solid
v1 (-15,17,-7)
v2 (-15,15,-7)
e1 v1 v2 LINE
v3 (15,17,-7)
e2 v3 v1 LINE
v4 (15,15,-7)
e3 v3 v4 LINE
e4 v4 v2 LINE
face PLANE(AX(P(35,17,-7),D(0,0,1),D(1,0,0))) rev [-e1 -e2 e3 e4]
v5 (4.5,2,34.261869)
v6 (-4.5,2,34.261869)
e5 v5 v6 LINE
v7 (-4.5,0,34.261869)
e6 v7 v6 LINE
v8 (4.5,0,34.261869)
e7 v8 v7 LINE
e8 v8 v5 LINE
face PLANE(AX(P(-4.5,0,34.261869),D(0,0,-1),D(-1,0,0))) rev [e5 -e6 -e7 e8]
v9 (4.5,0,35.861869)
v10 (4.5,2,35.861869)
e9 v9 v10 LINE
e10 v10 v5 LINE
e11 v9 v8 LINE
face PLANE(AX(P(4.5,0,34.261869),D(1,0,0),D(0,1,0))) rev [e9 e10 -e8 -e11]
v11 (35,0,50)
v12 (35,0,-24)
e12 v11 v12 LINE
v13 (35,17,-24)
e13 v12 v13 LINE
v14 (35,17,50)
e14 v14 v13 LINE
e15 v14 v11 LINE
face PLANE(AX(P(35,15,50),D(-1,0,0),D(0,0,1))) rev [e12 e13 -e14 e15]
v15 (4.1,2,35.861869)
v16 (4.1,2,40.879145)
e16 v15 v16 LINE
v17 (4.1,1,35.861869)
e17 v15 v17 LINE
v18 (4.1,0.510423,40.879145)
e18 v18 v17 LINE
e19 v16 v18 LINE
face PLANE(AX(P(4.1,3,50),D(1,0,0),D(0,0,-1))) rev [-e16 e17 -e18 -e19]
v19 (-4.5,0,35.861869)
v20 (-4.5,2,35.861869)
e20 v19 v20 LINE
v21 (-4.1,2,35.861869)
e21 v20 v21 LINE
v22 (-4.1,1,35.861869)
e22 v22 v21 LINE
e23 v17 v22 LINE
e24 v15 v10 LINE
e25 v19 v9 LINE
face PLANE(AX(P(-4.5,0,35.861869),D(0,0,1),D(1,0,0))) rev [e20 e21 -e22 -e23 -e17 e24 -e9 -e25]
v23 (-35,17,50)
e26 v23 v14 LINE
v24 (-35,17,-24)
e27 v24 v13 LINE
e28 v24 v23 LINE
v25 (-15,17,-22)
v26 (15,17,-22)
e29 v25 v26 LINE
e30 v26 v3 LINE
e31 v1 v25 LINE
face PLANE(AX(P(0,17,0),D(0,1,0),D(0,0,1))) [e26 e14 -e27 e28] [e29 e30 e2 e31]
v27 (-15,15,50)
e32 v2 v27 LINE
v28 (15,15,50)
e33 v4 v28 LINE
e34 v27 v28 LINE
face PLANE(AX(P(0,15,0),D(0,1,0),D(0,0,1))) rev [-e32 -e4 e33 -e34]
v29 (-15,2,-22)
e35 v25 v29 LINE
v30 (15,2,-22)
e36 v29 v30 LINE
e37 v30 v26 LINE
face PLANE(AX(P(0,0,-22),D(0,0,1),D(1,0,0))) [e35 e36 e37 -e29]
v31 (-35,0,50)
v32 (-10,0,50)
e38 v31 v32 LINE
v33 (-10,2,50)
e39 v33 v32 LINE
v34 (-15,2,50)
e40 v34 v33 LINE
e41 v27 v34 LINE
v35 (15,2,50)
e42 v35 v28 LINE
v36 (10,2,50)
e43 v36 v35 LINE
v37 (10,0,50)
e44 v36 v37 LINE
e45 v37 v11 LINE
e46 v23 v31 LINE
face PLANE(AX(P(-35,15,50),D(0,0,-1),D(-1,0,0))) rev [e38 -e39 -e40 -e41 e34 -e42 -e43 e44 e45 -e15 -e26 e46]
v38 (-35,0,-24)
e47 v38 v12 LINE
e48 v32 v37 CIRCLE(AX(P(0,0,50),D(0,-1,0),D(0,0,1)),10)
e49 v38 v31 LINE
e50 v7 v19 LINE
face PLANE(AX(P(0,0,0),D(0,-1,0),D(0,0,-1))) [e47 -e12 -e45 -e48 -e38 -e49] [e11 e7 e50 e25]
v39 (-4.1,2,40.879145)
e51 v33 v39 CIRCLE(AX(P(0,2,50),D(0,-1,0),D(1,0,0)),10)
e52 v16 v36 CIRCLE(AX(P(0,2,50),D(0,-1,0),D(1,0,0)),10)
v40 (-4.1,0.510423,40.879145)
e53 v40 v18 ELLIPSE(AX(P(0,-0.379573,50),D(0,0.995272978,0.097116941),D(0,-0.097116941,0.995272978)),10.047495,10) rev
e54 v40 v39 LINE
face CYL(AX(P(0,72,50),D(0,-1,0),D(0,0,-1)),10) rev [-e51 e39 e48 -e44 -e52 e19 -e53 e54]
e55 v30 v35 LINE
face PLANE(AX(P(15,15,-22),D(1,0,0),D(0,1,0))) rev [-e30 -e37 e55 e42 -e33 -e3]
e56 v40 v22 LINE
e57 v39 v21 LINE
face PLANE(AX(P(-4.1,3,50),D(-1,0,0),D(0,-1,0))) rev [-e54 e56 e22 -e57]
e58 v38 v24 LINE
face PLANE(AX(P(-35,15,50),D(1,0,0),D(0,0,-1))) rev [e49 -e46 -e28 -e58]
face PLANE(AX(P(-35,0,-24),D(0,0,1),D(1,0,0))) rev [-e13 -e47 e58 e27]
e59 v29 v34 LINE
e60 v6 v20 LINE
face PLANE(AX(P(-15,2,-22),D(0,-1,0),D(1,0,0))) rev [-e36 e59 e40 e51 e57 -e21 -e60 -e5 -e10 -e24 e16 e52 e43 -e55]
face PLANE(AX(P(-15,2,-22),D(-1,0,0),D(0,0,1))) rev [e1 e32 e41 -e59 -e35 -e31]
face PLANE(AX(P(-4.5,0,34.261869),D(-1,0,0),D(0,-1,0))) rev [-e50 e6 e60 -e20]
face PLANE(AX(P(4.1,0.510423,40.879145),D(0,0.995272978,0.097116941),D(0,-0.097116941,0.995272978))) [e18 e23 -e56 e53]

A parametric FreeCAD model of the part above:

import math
import FreeCAD as App
import Part
import Sketcher
Q = App.Units.Quantity

doc = App.newDocument("Part")
params = doc.addObject("Spreadsheet::Sheet", "Params")
for row, (alias, value) in enumerate([
    ("sketch1_width", "70 mm"),
    ("sketch1_height", "100 mm"),
    ("pad1_length", "15 mm"),
    ("sketch2_width", "30 mm"),
    ("sketch2_height", "13 mm"),
    ("pocket1_length", "72 mm"),
    ("sketch3_radius", "10 mm"),
    ("pocket2_length", "72 mm"),
    ("sketch4_width", "9 mm"),
    ("sketch4_height", "1.6 mm"),
    ("pocket3_length", "2 mm"),
    ("sketch5_height", "2 mm"),
    ("sketch5_width", "8.2 mm"),
    ("pocket5_length", "8.2 mm"),
    ("sketch7_width", "70 mm"),
    ("sketch7_height", "57 mm"),
    ("pad2_length", "2 mm"),
    ("sketch8_width", "20 mm"),
    ("sketch8_height", "15 mm"),
    ("pad3_length", "2 mm"),
    ("sketch9_width", "70 mm"),
    ("pad4_length", "2 mm"),
    ("sketch10_width", "70 mm"),
    ("sketch10_height", "26 mm"),
], start=1):
    params.set(f"A{row}", alias)
    params.set(f"B{row}", "=" + value)
    params.setAlias(f"B{row}", alias)

body = doc.addObject("PartDesign::Body", "Body")

# Sketch on XZ plane
sketch1 = body.newObject("Sketcher::SketchObject", "Sketch")
sketch1.AttachmentSupport = (doc.getObject("XZ_Plane"), [""])
sketch1.MapMode = "FlatFace"
sketch1.addGeometry(Part.LineSegment(App.Vector(-35, -50, 0), App.Vector(-35, 50, 0)), False)
sketch1.addGeometry(Part.LineSegment(App.Vector(-35, 50, 0), App.Vector(35, 50, 0)), False)
sketch1.addGeometry(Part.LineSegment(App.Vector(35, 50, 0), App.Vector(35, -50, 0)), False)
sketch1.addGeometry(Part.LineSegment(App.Vector(35, -50, 0), App.Vector(-35, -50, 0)), False)
sketch1.addConstraint(Sketcher.Constraint("Coincident", 0, 2, 1, 1))
sketch1.addConstraint(Sketcher.Constraint("Coincident", 1, 2, 2, 1))
sketch1.addConstraint(Sketcher.Constraint("Coincident", 2, 2, 3, 1))
sketch1.addConstraint(Sketcher.Constraint("Coincident", 3, 2, 0, 1))
sketch1.addConstraint(Sketcher.Constraint("Vertical", 0))
sketch1.addConstraint(Sketcher.Constraint("Horizontal", 1))
sketch1.addConstraint(Sketcher.Constraint("Vertical", 2))
sketch1.addConstraint(Sketcher.Constraint("Horizontal", 3))
sketch1.addConstraint(Sketcher.Constraint("Symmetric", 0, 2, 2, 2, -1, 1))
sketch1.addConstraint(Sketcher.Constraint("DistanceX", 1, 1, 1, 2, Q("70 mm")))
sketch1.addConstraint(Sketcher.Constraint("DistanceY", 0, 1, 0, 2, Q("100 mm")))
sketch1.setExpression("Constraints[9]", "Params.sketch1_width")
sketch1.setExpression("Constraints[10]", "Params.sketch1_height")
pad1 = body.newObject("PartDesign::Pad", "Pad")
pad1.Profile = sketch1
pad1.setExpression("Length", "Params.pad1_length")
pad1.Reversed = True

# Sketch on XY plane
sketch2 = body.newObject("Sketcher::SketchObject", "Sketch001")
sketch2.AttachmentSupport = (doc.getObject("XY_Plane"), [""])
sketch2.MapMode = "FlatFace"
sketch2.AttachmentOffset = App.Placement(App.Vector(0, 0, 50), App.Rotation())
sketch2.addGeometry(Part.LineSegment(App.Vector(-15, 15, 0), App.Vector(-15, 2, 0)), False)
sketch2.addGeometry(Part.LineSegment(App.Vector(-15, 2, 0), App.Vector(15, 2, 0)), False)
sketch2.addGeometry(Part.LineSegment(App.Vector(15, 2, 0), App.Vector(15, 15, 0)), False)
sketch2.addGeometry(Part.LineSegment(App.Vector(15, 15, 0), App.Vector(-15, 15, 0)), False)
sketch2.addConstraint(Sketcher.Constraint("Coincident", 0, 2, 1, 1))
sketch2.addConstraint(Sketcher.Constraint("Coincident", 1, 2, 2, 1))
sketch2.addConstraint(Sketcher.Constraint("Coincident", 2, 2, 3, 1))
sketch2.addConstraint(Sketcher.Constraint("Coincident", 3, 2, 0, 1))
sketch2.addConstraint(Sketcher.Constraint("Vertical", 0))
sketch2.addConstraint(Sketcher.Constraint("Horizontal", 1))
sketch2.addConstraint(Sketcher.Constraint("Vertical", 2))
sketch2.addConstraint(Sketcher.Constraint("Horizontal", 3))
sketch2.addConstraint(Sketcher.Constraint("DistanceX", 1, 1, 1, 2, Q("30 mm")))
sketch2.addConstraint(Sketcher.Constraint("DistanceY", 0, 2, 0, 1, Q("13 mm")))
sketch2.addConstraint(Sketcher.Constraint("DistanceX", 0, 2, -1, 1, Q("15 mm")))
sketch2.addConstraint(Sketcher.Constraint("DistanceY", -1, 1, 0, 2, Q("2 mm")))
sketch2.setExpression("Constraints[8]", "Params.sketch2_width")
sketch2.setExpression("Constraints[9]", "Params.sketch2_height")
pocket1 = body.newObject("PartDesign::Pocket", "Pocket")
pocket1.Profile = sketch2
pocket1.setExpression("Length", "Params.pocket1_length")

# Sketch on XZ plane
sketch3 = body.newObject("Sketcher::SketchObject", "Sketch002")
sketch3.AttachmentSupport = (doc.getObject("XZ_Plane"), [""])
sketch3.MapMode = "FlatFace"
sketch3.addGeometry(Part.LineSegment(App.Vector(10, 50, 0), App.Vector(-10, 50, 0)), False)
sketch3.addGeometry(Part.ArcOfCircle(Part.Circle(App.Vector(0, 50, 0), App.Vector(0, 0, 1), 10), math.radians(180), math.radians(360)), False)
sketch3.addConstraint(Sketcher.Constraint("Coincident", 0, 1, 1, 2))
sketch3.addConstraint(Sketcher.Constraint("Coincident", 1, 1, 0, 2))
sketch3.addConstraint(Sketcher.Constraint("Horizontal", 0))
sketch3.addConstraint(Sketcher.Constraint("PointOnObject", 1, 3, -2))
sketch3.addConstraint(Sketcher.Constraint("Horizontal", 1, 3, 0, 1))
sketch3.addConstraint(Sketcher.Constraint("Radius", 1, Q("10 mm")))
sketch3.addConstraint(Sketcher.Constraint("DistanceY", -1, 1, 1, 3, Q("50 mm")))
sketch3.setExpression("Constraints[5]", "Params.sketch3_radius")
pocket2 = body.newObject("PartDesign::Pocket", "Pocket001")
pocket2.Profile = sketch3
pocket2.setExpression("Length", "Params.pocket2_length")

# Sketch on XZ plane
sketch4 = body.newObject("Sketcher::SketchObject", "Sketch003")
sketch4.AttachmentSupport = (doc.getObject("XZ_Plane"), [""])
sketch4.MapMode = "FlatFace"
sketch4.AttachmentOffset = App.Placement(App.Vector(0, 0, -2), App.Rotation())
sketch4.addGeometry(Part.LineSegment(App.Vector(-4.5, 34.261869, 0), App.Vector(-4.5, 35.861869, 0)), False)
sketch4.addGeometry(Part.LineSegment(App.Vector(-4.5, 35.861869, 0), App.Vector(4.5, 35.861869, 0)), False)
sketch4.addGeometry(Part.LineSegment(App.Vector(4.5, 35.861869, 0), App.Vector(4.5, 34.261869, 0)), False)
sketch4.addGeometry(Part.LineSegment(App.Vector(4.5, 34.261869, 0), App.Vector(-4.5, 34.261869, 0)), False)
sketch4.addConstraint(Sketcher.Constraint("Coincident", 0, 2, 1, 1))
sketch4.addConstraint(Sketcher.Constraint("Coincident", 1, 2, 2, 1))
sketch4.addConstraint(Sketcher.Constraint("Coincident", 2, 2, 3, 1))
sketch4.addConstraint(Sketcher.Constraint("Coincident", 3, 2, 0, 1))
sketch4.addConstraint(Sketcher.Constraint("Vertical", 0))
sketch4.addConstraint(Sketcher.Constraint("Horizontal", 1))
sketch4.addConstraint(Sketcher.Constraint("Vertical", 2))
sketch4.addConstraint(Sketcher.Constraint("Horizontal", 3))
sketch4.addConstraint(Sketcher.Constraint("DistanceX", 1, 1, 1, 2, Q("9 mm")))
sketch4.addConstraint(Sketcher.Constraint("DistanceY", 0, 1, 0, 2, Q("1.6 mm")))
sketch4.addConstraint(Sketcher.Constraint("DistanceX", 0, 2, -1, 1, Q("4.5 mm")))
sketch4.addConstraint(Sketcher.Constraint("DistanceY", -1, 1, 0, 2, Q("35.861869 mm")))
sketch4.setExpression("Constraints[8]", "Params.sketch4_width")
sketch4.setExpression("Constraints[9]", "Params.sketch4_height")
pocket3 = body.newObject("PartDesign::Pocket", "Pocket002")
pocket3.Profile = sketch4
pocket3.setExpression("Length", "Params.pocket3_length")
pocket3.Reversed = True

# Sketch on XY plane
sketch5 = body.newObject("Sketcher::SketchObject", "Sketch004")
sketch5.AttachmentSupport = (doc.getObject("XY_Plane"), [""])
sketch5.MapMode = "FlatFace"
sketch5.AttachmentOffset = App.Placement(App.Vector(0, 0, 35.861869), App.Rotation())
sketch5.addGeometry(Part.LineSegment(App.Vector(4.1, 3, 0), App.Vector(4.1, 1, 0)), False)
sketch5.addGeometry(Part.LineSegment(App.Vector(4.1, 1, 0), App.Vector(-4.1, 1, 0)), False)
sketch5.addGeometry(Part.LineSegment(App.Vector(-4.1, 1, 0), App.Vector(-4.1, 3, 0)), False)
sketch5.addGeometry(Part.LineSegment(App.Vector(-4.1, 3, 0), App.Vector(4.1, 3, 0)), False)
sketch5.addConstraint(Sketcher.Constraint("Coincident", 0, 2, 1, 1))
sketch5.addConstraint(Sketcher.Constraint("Coincident", 1, 2, 2, 1))
sketch5.addConstraint(Sketcher.Constraint("Coincident", 2, 2, 3, 1))
sketch5.addConstraint(Sketcher.Constraint("Coincident", 3, 2, 0, 1))
sketch5.addConstraint(Sketcher.Constraint("Vertical", 0))
sketch5.addConstraint(Sketcher.Constraint("Horizontal", 1))
sketch5.addConstraint(Sketcher.Constraint("Vertical", 2))
sketch5.addConstraint(Sketcher.Constraint("Horizontal", 3))
sketch5.addConstraint(Sketcher.Constraint("DistanceY", 0, 2, 0, 1, Q("2 mm")))
sketch5.addConstraint(Sketcher.Constraint("DistanceX", 1, 2, 1, 1, Q("8.2 mm")))
sketch5.addConstraint(Sketcher.Constraint("DistanceY", -1, 1, 0, 2, Q("1 mm")))
sketch5.addConstraint(Sketcher.Constraint("DistanceX", -1, 1, 0, 2, Q("4.1 mm")))
sketch5.setExpression("Constraints[8]", "Params.sketch5_height")
sketch5.setExpression("Constraints[9]", "Params.sketch5_width")
pocket4 = body.newObject("PartDesign::Pocket", "Pocket003")
pocket4.Profile = sketch5
pocket4.Type = "ThroughAll"
pocket4.Reversed = True

# Sketch on YZ plane
sketch6 = body.newObject("Sketcher::SketchObject", "Sketch005")
sketch6.AttachmentSupport = (doc.getObject("YZ_Plane"), [""])
sketch6.MapMode = "FlatFace"
sketch6.AttachmentOffset = App.Placement(App.Vector(0, 0, -4.1), App.Rotation())
sketch6.addGeometry(Part.LineSegment(App.Vector(0.510423, 40.879145, 0), App.Vector(1, 35.861869, 0)), False)
sketch6.addGeometry(Part.LineSegment(App.Vector(1, 35.861869, 0), App.Vector(1, 40.879145, 0)), False)
sketch6.addGeometry(Part.LineSegment(App.Vector(1, 40.879145, 0), App.Vector(0.510423, 40.879145, 0)), False)
sketch6.addConstraint(Sketcher.Constraint("Coincident", 0, 2, 1, 1))
sketch6.addConstraint(Sketcher.Constraint("Coincident", 1, 2, 2, 1))
sketch6.addConstraint(Sketcher.Constraint("Coincident", 2, 2, 0, 1))
sketch6.addConstraint(Sketcher.Constraint("Vertical", 1))
sketch6.addConstraint(Sketcher.Constraint("Horizontal", 2))
sketch6.addConstraint(Sketcher.Constraint("DistanceX", -1, 1, 0, 2, Q("1 mm")))
sketch6.addConstraint(Sketcher.Constraint("DistanceX", 2, 2, 2, 1, Q("0.489577 mm")))
sketch6.addConstraint(Sketcher.Constraint("DistanceY", 1, 1, 1, 2, Q("5.017276 mm")))
sketch6.addConstraint(Sketcher.Constraint("DistanceY", -1, 1, 0, 2, Q("35.861869 mm")))
pocket5 = body.newObject("PartDesign::Pocket", "Pocket004")
pocket5.Profile = sketch6
pocket5.setExpression("Length", "Params.pocket5_length")
pocket5.Reversed = True

# Sketch on XZ plane
sketch7 = body.newObject("Sketcher::SketchObject", "Sketch006")
sketch7.AttachmentSupport = (doc.getObject("XZ_Plane"), [""])
sketch7.MapMode = "FlatFace"
sketch7.AttachmentOffset = App.Placement(App.Vector(0, 0, -15), App.Rotation())
sketch7.addGeometry(Part.LineSegment(App.Vector(-35, -7, 0), App.Vector(-35, 50, 0)), False)
sketch7.addGeometry(Part.LineSegment(App.Vector(-35, 50, 0), App.Vector(35, 50, 0)), False)
sketch7.addGeometry(Part.LineSegment(App.Vector(35, 50, 0), App.Vector(35, -7, 0)), False)
sketch7.addGeometry(Part.LineSegment(App.Vector(35, -7, 0), App.Vector(-35, -7, 0)), False)
sketch7.addGeometry(Part.LineSegment(App.Vector(35, -22, 0), App.Vector(35, -27.549669, 0)), False)
sketch7.addGeometry(Part.LineSegment(App.Vector(35, -27.549669, 0), App.Vector(-35, -27.549669, 0)), False)
sketch7.addGeometry(Part.LineSegment(App.Vector(-35, -27.549669, 0), App.Vector(-35, -22, 0)), False)
sketch7.addGeometry(Part.LineSegment(App.Vector(-35, -22, 0), App.Vector(35, -22, 0)), False)
sketch7.addConstraint(Sketcher.Constraint("Coincident", 0, 2, 1, 1))
sketch7.addConstraint(Sketcher.Constraint("Coincident", 1, 2, 2, 1))
sketch7.addConstraint(Sketcher.Constraint("Coincident", 2, 2, 3, 1))
sketch7.addConstraint(Sketcher.Constraint("Coincident", 3, 2, 0, 1))
sketch7.addConstraint(Sketcher.Constraint("Coincident", 4, 2, 5, 1))
sketch7.addConstraint(Sketcher.Constraint("Coincident", 5, 2, 6, 1))
sketch7.addConstraint(Sketcher.Constraint("Coincident", 6, 2, 7, 1))
sketch7.addConstraint(Sketcher.Constraint("Coincident", 7, 2, 4, 1))
sketch7.addConstraint(Sketcher.Constraint("Vertical", 0))
sketch7.addConstraint(Sketcher.Constraint("Horizontal", 1))
sketch7.addConstraint(Sketcher.Constraint("Vertical", 2))
sketch7.addConstraint(Sketcher.Constraint("Horizontal", 3))
sketch7.addConstraint(Sketcher.Constraint("Vertical", 4))
sketch7.addConstraint(Sketcher.Constraint("Horizontal", 5))
sketch7.addConstraint(Sketcher.Constraint("Vertical", 6))
sketch7.addConstraint(Sketcher.Constraint("Horizontal", 7))
sketch7.addConstraint(Sketcher.Constraint("Vertical", 2, 2, 4, 2))
sketch7.addConstraint(Sketcher.Constraint("Vertical", 3, 2, 5, 2))
sketch7.addConstraint(Sketcher.Constraint("DistanceX", 1, 1, 1, 2, Q("70 mm")))
sketch7.addConstraint(Sketcher.Constraint("DistanceY", 0, 1, 0, 2, Q("57 mm")))
sketch7.addConstraint(Sketcher.Constraint("DistanceX", 0, 2, -1, 1, Q("35 mm")))
sketch7.addConstraint(Sketcher.Constraint("DistanceY", -1, 1, 0, 2, Q("50 mm")))
sketch7.addConstraint(Sketcher.Constraint("DistanceY", 6, 2, -1, 1, Q("22 mm")))
sketch7.addConstraint(Sketcher.Constraint("DistanceY", 4, 2, 4, 1, Q("5.549669 mm")))
sketch7.setExpression("Constraints[18]", "Params.sketch7_width")
sketch7.setExpression("Constraints[19]", "Params.sketch7_height")
pad2 = body.newObject("PartDesign::Pad", "Pad001")
pad2.Profile = sketch7
pad2.setExpression("Length", "Params.pad2_length")
pad2.Reversed = True

# Sketch on XZ plane
sketch8 = body.newObject("Sketcher::SketchObject", "Sketch007")
sketch8.AttachmentSupport = (doc.getObject("XZ_Plane"), [""])
sketch8.MapMode = "FlatFace"
sketch8.AttachmentOffset = App.Placement(App.Vector(0, 0, -15), App.Rotation())
sketch8.addGeometry(Part.LineSegment(App.Vector(-35, -22, 0), App.Vector(-35, -7, 0)), False)
sketch8.addGeometry(Part.LineSegment(App.Vector(-35, -7, 0), App.Vector(-15, -7, 0)), False)
sketch8.addGeometry(Part.LineSegment(App.Vector(-15, -7, 0), App.Vector(-15, -22, 0)), False)
sketch8.addGeometry(Part.LineSegment(App.Vector(-15, -22, 0), App.Vector(-35, -22, 0)), False)
sketch8.addGeometry(Part.LineSegment(App.Vector(15, -22, 0), App.Vector(15, -7, 0)), False)
sketch8.addGeometry(Part.LineSegment(App.Vector(15, -7, 0), App.Vector(35, -7, 0)), False)
sketch8.addGeometry(Part.LineSegment(App.Vector(35, -7, 0), App.Vector(35, -22, 0)), False)
sketch8.addGeometry(Part.LineSegment(App.Vector(35, -22, 0), App.Vector(15, -22, 0)), False)
sketch8.addConstraint(Sketcher.Constraint("Coincident", 0, 2, 1, 1))
sketch8.addConstraint(Sketcher.Constraint("Coincident", 1, 2, 2, 1))
sketch8.addConstraint(Sketcher.Constraint("Coincident", 2, 2, 3, 1))
sketch8.addConstraint(Sketcher.Constraint("Coincident", 3, 2, 0, 1))
sketch8.addConstraint(Sketcher.Constraint("Coincident", 4, 2, 5, 1))
sketch8.addConstraint(Sketcher.Constraint("Coincident", 5, 2, 6, 1))
sketch8.addConstraint(Sketcher.Constraint("Coincident", 6, 2, 7, 1))
sketch8.addConstraint(Sketcher.Constraint("Coincident", 7, 2, 4, 1))
sketch8.addConstraint(Sketcher.Constraint("Vertical", 0))
sketch8.addConstraint(Sketcher.Constraint("Horizontal", 1))
sketch8.addConstraint(Sketcher.Constraint("Vertical", 2))
sketch8.addConstraint(Sketcher.Constraint("Horizontal", 3))
sketch8.addConstraint(Sketcher.Constraint("Vertical", 4))
sketch8.addConstraint(Sketcher.Constraint("Horizontal", 5))
sketch8.addConstraint(Sketcher.Constraint("Vertical", 6))
sketch8.addConstraint(Sketcher.Constraint("Horizontal", 7))
sketch8.addConstraint(Sketcher.Constraint("Symmetric", 1, 2, 4, 2, -2))
sketch8.addConstraint(Sketcher.Constraint("Symmetric", 3, 2, 6, 2, -2))
sketch8.addConstraint(Sketcher.Constraint("DistanceX", 1, 1, 1, 2, Q("20 mm")))
sketch8.addConstraint(Sketcher.Constraint("DistanceY", 0, 1, 0, 2, Q("15 mm")))
sketch8.addConstraint(Sketcher.Constraint("DistanceX", 0, 2, -1, 1, Q("35 mm")))
sketch8.addConstraint(Sketcher.Constraint("DistanceY", 0, 2, -1, 1, Q("7 mm")))
sketch8.setExpression("Constraints[18]", "Params.sketch8_width")
sketch8.setExpression("Constraints[19]", "Params.sketch8_height")
pad3 = body.newObject("PartDesign::Pad", "Pad002")
pad3.Profile = sketch8
pad3.setExpression("Length", "Params.pad3_length")
pad3.Reversed = True

# Sketch on XZ plane
sketch9 = body.newObject("Sketcher::SketchObject", "Sketch008")
sketch9.AttachmentSupport = (doc.getObject("XZ_Plane"), [""])
sketch9.MapMode = "FlatFace"
sketch9.AttachmentOffset = App.Placement(App.Vector(0, 0, -15), App.Rotation())
sketch9.addGeometry(Part.LineSegment(App.Vector(-35, -50, 0), App.Vector(-35, -27.549669, 0)), False)
sketch9.addGeometry(Part.LineSegment(App.Vector(-35, -27.549669, 0), App.Vector(35, -27.549669, 0)), False)
sketch9.addGeometry(Part.LineSegment(App.Vector(35, -27.549669, 0), App.Vector(35, -50, 0)), False)
sketch9.addGeometry(Part.LineSegment(App.Vector(35, -50, 0), App.Vector(-35, -50, 0)), False)
sketch9.addConstraint(Sketcher.Constraint("Coincident", 0, 2, 1, 1))
sketch9.addConstraint(Sketcher.Constraint("Coincident", 1, 2, 2, 1))
sketch9.addConstraint(Sketcher.Constraint("Coincident", 2, 2, 3, 1))
sketch9.addConstraint(Sketcher.Constraint("Coincident", 3, 2, 0, 1))
sketch9.addConstraint(Sketcher.Constraint("Vertical", 0))
sketch9.addConstraint(Sketcher.Constraint("Horizontal", 1))
sketch9.addConstraint(Sketcher.Constraint("Vertical", 2))
sketch9.addConstraint(Sketcher.Constraint("Horizontal", 3))
sketch9.addConstraint(Sketcher.Constraint("DistanceX", 1, 1, 1, 2, Q("70 mm")))
sketch9.addConstraint(Sketcher.Constraint("DistanceX", 0, 2, -1, 1, Q("35 mm")))
sketch9.addConstraint(Sketcher.Constraint("DistanceY", 2, 2, -1, 1, Q("50 mm")))
sketch9.addConstraint(Sketcher.Constraint("DistanceY", 0, 1, 0, 2, Q("22.450331 mm")))
sketch9.setExpression("Constraints[8]", "Params.sketch9_width")
pad4 = body.newObject("PartDesign::Pad", "Pad003")
pad4.Profile = sketch9
pad4.setExpression("Length", "Params.pad4_length")
pad4.Reversed = True

# Sketch on XZ plane
sketch10 = body.newObject("Sketcher::SketchObject", "Sketch009")
sketch10.AttachmentSupport = (doc.getObject("XZ_Plane"), [""])
sketch10.MapMode = "FlatFace"
sketch10.AttachmentOffset = App.Placement(App.Vector(0, 0, -17), App.Rotation())
sketch10.addGeometry(Part.LineSegment(App.Vector(-35, -50, 0), App.Vector(-35, -24, 0)), False)
sketch10.addGeometry(Part.LineSegment(App.Vector(-35, -24, 0), App.Vector(35, -24, 0)), False)
sketch10.addGeometry(Part.LineSegment(App.Vector(35, -24, 0), App.Vector(35, -50, 0)), False)
sketch10.addGeometry(Part.LineSegment(App.Vector(35, -50, 0), App.Vector(-35, -50, 0)), False)
sketch10.addConstraint(Sketcher.Constraint("Coincident", 0, 2, 1, 1))
sketch10.addConstraint(Sketcher.Constraint("Coincident", 1, 2, 2, 1))
sketch10.addConstraint(Sketcher.Constraint("Coincident", 2, 2, 3, 1))
sketch10.addConstraint(Sketcher.Constraint("Coincident", 3, 2, 0, 1))
sketch10.addConstraint(Sketcher.Constraint("Vertical", 0))
sketch10.addConstraint(Sketcher.Constraint("Horizontal", 1))
sketch10.addConstraint(Sketcher.Constraint("Vertical", 2))
sketch10.addConstraint(Sketcher.Constraint("Horizontal", 3))
sketch10.addConstraint(Sketcher.Constraint("DistanceX", 1, 1, 1, 2, Q("70 mm")))
sketch10.addConstraint(Sketcher.Constraint("DistanceY", 0, 1, 0, 2, Q("26 mm")))
sketch10.addConstraint(Sketcher.Constraint("DistanceX", 0, 2, -1, 1, Q("35 mm")))
sketch10.addConstraint(Sketcher.Constraint("DistanceY", 0, 2, -1, 1, Q("24 mm")))
sketch10.setExpression("Constraints[8]", "Params.sketch10_width")
sketch10.setExpression("Constraints[9]", "Params.sketch10_height")
pocket6 = body.newObject("PartDesign::Pocket", "Pocket005")
pocket6.Profile = sketch10
pocket6.Type = "ThroughAll"
pocket6.Reversed = True

doc.recompute()
